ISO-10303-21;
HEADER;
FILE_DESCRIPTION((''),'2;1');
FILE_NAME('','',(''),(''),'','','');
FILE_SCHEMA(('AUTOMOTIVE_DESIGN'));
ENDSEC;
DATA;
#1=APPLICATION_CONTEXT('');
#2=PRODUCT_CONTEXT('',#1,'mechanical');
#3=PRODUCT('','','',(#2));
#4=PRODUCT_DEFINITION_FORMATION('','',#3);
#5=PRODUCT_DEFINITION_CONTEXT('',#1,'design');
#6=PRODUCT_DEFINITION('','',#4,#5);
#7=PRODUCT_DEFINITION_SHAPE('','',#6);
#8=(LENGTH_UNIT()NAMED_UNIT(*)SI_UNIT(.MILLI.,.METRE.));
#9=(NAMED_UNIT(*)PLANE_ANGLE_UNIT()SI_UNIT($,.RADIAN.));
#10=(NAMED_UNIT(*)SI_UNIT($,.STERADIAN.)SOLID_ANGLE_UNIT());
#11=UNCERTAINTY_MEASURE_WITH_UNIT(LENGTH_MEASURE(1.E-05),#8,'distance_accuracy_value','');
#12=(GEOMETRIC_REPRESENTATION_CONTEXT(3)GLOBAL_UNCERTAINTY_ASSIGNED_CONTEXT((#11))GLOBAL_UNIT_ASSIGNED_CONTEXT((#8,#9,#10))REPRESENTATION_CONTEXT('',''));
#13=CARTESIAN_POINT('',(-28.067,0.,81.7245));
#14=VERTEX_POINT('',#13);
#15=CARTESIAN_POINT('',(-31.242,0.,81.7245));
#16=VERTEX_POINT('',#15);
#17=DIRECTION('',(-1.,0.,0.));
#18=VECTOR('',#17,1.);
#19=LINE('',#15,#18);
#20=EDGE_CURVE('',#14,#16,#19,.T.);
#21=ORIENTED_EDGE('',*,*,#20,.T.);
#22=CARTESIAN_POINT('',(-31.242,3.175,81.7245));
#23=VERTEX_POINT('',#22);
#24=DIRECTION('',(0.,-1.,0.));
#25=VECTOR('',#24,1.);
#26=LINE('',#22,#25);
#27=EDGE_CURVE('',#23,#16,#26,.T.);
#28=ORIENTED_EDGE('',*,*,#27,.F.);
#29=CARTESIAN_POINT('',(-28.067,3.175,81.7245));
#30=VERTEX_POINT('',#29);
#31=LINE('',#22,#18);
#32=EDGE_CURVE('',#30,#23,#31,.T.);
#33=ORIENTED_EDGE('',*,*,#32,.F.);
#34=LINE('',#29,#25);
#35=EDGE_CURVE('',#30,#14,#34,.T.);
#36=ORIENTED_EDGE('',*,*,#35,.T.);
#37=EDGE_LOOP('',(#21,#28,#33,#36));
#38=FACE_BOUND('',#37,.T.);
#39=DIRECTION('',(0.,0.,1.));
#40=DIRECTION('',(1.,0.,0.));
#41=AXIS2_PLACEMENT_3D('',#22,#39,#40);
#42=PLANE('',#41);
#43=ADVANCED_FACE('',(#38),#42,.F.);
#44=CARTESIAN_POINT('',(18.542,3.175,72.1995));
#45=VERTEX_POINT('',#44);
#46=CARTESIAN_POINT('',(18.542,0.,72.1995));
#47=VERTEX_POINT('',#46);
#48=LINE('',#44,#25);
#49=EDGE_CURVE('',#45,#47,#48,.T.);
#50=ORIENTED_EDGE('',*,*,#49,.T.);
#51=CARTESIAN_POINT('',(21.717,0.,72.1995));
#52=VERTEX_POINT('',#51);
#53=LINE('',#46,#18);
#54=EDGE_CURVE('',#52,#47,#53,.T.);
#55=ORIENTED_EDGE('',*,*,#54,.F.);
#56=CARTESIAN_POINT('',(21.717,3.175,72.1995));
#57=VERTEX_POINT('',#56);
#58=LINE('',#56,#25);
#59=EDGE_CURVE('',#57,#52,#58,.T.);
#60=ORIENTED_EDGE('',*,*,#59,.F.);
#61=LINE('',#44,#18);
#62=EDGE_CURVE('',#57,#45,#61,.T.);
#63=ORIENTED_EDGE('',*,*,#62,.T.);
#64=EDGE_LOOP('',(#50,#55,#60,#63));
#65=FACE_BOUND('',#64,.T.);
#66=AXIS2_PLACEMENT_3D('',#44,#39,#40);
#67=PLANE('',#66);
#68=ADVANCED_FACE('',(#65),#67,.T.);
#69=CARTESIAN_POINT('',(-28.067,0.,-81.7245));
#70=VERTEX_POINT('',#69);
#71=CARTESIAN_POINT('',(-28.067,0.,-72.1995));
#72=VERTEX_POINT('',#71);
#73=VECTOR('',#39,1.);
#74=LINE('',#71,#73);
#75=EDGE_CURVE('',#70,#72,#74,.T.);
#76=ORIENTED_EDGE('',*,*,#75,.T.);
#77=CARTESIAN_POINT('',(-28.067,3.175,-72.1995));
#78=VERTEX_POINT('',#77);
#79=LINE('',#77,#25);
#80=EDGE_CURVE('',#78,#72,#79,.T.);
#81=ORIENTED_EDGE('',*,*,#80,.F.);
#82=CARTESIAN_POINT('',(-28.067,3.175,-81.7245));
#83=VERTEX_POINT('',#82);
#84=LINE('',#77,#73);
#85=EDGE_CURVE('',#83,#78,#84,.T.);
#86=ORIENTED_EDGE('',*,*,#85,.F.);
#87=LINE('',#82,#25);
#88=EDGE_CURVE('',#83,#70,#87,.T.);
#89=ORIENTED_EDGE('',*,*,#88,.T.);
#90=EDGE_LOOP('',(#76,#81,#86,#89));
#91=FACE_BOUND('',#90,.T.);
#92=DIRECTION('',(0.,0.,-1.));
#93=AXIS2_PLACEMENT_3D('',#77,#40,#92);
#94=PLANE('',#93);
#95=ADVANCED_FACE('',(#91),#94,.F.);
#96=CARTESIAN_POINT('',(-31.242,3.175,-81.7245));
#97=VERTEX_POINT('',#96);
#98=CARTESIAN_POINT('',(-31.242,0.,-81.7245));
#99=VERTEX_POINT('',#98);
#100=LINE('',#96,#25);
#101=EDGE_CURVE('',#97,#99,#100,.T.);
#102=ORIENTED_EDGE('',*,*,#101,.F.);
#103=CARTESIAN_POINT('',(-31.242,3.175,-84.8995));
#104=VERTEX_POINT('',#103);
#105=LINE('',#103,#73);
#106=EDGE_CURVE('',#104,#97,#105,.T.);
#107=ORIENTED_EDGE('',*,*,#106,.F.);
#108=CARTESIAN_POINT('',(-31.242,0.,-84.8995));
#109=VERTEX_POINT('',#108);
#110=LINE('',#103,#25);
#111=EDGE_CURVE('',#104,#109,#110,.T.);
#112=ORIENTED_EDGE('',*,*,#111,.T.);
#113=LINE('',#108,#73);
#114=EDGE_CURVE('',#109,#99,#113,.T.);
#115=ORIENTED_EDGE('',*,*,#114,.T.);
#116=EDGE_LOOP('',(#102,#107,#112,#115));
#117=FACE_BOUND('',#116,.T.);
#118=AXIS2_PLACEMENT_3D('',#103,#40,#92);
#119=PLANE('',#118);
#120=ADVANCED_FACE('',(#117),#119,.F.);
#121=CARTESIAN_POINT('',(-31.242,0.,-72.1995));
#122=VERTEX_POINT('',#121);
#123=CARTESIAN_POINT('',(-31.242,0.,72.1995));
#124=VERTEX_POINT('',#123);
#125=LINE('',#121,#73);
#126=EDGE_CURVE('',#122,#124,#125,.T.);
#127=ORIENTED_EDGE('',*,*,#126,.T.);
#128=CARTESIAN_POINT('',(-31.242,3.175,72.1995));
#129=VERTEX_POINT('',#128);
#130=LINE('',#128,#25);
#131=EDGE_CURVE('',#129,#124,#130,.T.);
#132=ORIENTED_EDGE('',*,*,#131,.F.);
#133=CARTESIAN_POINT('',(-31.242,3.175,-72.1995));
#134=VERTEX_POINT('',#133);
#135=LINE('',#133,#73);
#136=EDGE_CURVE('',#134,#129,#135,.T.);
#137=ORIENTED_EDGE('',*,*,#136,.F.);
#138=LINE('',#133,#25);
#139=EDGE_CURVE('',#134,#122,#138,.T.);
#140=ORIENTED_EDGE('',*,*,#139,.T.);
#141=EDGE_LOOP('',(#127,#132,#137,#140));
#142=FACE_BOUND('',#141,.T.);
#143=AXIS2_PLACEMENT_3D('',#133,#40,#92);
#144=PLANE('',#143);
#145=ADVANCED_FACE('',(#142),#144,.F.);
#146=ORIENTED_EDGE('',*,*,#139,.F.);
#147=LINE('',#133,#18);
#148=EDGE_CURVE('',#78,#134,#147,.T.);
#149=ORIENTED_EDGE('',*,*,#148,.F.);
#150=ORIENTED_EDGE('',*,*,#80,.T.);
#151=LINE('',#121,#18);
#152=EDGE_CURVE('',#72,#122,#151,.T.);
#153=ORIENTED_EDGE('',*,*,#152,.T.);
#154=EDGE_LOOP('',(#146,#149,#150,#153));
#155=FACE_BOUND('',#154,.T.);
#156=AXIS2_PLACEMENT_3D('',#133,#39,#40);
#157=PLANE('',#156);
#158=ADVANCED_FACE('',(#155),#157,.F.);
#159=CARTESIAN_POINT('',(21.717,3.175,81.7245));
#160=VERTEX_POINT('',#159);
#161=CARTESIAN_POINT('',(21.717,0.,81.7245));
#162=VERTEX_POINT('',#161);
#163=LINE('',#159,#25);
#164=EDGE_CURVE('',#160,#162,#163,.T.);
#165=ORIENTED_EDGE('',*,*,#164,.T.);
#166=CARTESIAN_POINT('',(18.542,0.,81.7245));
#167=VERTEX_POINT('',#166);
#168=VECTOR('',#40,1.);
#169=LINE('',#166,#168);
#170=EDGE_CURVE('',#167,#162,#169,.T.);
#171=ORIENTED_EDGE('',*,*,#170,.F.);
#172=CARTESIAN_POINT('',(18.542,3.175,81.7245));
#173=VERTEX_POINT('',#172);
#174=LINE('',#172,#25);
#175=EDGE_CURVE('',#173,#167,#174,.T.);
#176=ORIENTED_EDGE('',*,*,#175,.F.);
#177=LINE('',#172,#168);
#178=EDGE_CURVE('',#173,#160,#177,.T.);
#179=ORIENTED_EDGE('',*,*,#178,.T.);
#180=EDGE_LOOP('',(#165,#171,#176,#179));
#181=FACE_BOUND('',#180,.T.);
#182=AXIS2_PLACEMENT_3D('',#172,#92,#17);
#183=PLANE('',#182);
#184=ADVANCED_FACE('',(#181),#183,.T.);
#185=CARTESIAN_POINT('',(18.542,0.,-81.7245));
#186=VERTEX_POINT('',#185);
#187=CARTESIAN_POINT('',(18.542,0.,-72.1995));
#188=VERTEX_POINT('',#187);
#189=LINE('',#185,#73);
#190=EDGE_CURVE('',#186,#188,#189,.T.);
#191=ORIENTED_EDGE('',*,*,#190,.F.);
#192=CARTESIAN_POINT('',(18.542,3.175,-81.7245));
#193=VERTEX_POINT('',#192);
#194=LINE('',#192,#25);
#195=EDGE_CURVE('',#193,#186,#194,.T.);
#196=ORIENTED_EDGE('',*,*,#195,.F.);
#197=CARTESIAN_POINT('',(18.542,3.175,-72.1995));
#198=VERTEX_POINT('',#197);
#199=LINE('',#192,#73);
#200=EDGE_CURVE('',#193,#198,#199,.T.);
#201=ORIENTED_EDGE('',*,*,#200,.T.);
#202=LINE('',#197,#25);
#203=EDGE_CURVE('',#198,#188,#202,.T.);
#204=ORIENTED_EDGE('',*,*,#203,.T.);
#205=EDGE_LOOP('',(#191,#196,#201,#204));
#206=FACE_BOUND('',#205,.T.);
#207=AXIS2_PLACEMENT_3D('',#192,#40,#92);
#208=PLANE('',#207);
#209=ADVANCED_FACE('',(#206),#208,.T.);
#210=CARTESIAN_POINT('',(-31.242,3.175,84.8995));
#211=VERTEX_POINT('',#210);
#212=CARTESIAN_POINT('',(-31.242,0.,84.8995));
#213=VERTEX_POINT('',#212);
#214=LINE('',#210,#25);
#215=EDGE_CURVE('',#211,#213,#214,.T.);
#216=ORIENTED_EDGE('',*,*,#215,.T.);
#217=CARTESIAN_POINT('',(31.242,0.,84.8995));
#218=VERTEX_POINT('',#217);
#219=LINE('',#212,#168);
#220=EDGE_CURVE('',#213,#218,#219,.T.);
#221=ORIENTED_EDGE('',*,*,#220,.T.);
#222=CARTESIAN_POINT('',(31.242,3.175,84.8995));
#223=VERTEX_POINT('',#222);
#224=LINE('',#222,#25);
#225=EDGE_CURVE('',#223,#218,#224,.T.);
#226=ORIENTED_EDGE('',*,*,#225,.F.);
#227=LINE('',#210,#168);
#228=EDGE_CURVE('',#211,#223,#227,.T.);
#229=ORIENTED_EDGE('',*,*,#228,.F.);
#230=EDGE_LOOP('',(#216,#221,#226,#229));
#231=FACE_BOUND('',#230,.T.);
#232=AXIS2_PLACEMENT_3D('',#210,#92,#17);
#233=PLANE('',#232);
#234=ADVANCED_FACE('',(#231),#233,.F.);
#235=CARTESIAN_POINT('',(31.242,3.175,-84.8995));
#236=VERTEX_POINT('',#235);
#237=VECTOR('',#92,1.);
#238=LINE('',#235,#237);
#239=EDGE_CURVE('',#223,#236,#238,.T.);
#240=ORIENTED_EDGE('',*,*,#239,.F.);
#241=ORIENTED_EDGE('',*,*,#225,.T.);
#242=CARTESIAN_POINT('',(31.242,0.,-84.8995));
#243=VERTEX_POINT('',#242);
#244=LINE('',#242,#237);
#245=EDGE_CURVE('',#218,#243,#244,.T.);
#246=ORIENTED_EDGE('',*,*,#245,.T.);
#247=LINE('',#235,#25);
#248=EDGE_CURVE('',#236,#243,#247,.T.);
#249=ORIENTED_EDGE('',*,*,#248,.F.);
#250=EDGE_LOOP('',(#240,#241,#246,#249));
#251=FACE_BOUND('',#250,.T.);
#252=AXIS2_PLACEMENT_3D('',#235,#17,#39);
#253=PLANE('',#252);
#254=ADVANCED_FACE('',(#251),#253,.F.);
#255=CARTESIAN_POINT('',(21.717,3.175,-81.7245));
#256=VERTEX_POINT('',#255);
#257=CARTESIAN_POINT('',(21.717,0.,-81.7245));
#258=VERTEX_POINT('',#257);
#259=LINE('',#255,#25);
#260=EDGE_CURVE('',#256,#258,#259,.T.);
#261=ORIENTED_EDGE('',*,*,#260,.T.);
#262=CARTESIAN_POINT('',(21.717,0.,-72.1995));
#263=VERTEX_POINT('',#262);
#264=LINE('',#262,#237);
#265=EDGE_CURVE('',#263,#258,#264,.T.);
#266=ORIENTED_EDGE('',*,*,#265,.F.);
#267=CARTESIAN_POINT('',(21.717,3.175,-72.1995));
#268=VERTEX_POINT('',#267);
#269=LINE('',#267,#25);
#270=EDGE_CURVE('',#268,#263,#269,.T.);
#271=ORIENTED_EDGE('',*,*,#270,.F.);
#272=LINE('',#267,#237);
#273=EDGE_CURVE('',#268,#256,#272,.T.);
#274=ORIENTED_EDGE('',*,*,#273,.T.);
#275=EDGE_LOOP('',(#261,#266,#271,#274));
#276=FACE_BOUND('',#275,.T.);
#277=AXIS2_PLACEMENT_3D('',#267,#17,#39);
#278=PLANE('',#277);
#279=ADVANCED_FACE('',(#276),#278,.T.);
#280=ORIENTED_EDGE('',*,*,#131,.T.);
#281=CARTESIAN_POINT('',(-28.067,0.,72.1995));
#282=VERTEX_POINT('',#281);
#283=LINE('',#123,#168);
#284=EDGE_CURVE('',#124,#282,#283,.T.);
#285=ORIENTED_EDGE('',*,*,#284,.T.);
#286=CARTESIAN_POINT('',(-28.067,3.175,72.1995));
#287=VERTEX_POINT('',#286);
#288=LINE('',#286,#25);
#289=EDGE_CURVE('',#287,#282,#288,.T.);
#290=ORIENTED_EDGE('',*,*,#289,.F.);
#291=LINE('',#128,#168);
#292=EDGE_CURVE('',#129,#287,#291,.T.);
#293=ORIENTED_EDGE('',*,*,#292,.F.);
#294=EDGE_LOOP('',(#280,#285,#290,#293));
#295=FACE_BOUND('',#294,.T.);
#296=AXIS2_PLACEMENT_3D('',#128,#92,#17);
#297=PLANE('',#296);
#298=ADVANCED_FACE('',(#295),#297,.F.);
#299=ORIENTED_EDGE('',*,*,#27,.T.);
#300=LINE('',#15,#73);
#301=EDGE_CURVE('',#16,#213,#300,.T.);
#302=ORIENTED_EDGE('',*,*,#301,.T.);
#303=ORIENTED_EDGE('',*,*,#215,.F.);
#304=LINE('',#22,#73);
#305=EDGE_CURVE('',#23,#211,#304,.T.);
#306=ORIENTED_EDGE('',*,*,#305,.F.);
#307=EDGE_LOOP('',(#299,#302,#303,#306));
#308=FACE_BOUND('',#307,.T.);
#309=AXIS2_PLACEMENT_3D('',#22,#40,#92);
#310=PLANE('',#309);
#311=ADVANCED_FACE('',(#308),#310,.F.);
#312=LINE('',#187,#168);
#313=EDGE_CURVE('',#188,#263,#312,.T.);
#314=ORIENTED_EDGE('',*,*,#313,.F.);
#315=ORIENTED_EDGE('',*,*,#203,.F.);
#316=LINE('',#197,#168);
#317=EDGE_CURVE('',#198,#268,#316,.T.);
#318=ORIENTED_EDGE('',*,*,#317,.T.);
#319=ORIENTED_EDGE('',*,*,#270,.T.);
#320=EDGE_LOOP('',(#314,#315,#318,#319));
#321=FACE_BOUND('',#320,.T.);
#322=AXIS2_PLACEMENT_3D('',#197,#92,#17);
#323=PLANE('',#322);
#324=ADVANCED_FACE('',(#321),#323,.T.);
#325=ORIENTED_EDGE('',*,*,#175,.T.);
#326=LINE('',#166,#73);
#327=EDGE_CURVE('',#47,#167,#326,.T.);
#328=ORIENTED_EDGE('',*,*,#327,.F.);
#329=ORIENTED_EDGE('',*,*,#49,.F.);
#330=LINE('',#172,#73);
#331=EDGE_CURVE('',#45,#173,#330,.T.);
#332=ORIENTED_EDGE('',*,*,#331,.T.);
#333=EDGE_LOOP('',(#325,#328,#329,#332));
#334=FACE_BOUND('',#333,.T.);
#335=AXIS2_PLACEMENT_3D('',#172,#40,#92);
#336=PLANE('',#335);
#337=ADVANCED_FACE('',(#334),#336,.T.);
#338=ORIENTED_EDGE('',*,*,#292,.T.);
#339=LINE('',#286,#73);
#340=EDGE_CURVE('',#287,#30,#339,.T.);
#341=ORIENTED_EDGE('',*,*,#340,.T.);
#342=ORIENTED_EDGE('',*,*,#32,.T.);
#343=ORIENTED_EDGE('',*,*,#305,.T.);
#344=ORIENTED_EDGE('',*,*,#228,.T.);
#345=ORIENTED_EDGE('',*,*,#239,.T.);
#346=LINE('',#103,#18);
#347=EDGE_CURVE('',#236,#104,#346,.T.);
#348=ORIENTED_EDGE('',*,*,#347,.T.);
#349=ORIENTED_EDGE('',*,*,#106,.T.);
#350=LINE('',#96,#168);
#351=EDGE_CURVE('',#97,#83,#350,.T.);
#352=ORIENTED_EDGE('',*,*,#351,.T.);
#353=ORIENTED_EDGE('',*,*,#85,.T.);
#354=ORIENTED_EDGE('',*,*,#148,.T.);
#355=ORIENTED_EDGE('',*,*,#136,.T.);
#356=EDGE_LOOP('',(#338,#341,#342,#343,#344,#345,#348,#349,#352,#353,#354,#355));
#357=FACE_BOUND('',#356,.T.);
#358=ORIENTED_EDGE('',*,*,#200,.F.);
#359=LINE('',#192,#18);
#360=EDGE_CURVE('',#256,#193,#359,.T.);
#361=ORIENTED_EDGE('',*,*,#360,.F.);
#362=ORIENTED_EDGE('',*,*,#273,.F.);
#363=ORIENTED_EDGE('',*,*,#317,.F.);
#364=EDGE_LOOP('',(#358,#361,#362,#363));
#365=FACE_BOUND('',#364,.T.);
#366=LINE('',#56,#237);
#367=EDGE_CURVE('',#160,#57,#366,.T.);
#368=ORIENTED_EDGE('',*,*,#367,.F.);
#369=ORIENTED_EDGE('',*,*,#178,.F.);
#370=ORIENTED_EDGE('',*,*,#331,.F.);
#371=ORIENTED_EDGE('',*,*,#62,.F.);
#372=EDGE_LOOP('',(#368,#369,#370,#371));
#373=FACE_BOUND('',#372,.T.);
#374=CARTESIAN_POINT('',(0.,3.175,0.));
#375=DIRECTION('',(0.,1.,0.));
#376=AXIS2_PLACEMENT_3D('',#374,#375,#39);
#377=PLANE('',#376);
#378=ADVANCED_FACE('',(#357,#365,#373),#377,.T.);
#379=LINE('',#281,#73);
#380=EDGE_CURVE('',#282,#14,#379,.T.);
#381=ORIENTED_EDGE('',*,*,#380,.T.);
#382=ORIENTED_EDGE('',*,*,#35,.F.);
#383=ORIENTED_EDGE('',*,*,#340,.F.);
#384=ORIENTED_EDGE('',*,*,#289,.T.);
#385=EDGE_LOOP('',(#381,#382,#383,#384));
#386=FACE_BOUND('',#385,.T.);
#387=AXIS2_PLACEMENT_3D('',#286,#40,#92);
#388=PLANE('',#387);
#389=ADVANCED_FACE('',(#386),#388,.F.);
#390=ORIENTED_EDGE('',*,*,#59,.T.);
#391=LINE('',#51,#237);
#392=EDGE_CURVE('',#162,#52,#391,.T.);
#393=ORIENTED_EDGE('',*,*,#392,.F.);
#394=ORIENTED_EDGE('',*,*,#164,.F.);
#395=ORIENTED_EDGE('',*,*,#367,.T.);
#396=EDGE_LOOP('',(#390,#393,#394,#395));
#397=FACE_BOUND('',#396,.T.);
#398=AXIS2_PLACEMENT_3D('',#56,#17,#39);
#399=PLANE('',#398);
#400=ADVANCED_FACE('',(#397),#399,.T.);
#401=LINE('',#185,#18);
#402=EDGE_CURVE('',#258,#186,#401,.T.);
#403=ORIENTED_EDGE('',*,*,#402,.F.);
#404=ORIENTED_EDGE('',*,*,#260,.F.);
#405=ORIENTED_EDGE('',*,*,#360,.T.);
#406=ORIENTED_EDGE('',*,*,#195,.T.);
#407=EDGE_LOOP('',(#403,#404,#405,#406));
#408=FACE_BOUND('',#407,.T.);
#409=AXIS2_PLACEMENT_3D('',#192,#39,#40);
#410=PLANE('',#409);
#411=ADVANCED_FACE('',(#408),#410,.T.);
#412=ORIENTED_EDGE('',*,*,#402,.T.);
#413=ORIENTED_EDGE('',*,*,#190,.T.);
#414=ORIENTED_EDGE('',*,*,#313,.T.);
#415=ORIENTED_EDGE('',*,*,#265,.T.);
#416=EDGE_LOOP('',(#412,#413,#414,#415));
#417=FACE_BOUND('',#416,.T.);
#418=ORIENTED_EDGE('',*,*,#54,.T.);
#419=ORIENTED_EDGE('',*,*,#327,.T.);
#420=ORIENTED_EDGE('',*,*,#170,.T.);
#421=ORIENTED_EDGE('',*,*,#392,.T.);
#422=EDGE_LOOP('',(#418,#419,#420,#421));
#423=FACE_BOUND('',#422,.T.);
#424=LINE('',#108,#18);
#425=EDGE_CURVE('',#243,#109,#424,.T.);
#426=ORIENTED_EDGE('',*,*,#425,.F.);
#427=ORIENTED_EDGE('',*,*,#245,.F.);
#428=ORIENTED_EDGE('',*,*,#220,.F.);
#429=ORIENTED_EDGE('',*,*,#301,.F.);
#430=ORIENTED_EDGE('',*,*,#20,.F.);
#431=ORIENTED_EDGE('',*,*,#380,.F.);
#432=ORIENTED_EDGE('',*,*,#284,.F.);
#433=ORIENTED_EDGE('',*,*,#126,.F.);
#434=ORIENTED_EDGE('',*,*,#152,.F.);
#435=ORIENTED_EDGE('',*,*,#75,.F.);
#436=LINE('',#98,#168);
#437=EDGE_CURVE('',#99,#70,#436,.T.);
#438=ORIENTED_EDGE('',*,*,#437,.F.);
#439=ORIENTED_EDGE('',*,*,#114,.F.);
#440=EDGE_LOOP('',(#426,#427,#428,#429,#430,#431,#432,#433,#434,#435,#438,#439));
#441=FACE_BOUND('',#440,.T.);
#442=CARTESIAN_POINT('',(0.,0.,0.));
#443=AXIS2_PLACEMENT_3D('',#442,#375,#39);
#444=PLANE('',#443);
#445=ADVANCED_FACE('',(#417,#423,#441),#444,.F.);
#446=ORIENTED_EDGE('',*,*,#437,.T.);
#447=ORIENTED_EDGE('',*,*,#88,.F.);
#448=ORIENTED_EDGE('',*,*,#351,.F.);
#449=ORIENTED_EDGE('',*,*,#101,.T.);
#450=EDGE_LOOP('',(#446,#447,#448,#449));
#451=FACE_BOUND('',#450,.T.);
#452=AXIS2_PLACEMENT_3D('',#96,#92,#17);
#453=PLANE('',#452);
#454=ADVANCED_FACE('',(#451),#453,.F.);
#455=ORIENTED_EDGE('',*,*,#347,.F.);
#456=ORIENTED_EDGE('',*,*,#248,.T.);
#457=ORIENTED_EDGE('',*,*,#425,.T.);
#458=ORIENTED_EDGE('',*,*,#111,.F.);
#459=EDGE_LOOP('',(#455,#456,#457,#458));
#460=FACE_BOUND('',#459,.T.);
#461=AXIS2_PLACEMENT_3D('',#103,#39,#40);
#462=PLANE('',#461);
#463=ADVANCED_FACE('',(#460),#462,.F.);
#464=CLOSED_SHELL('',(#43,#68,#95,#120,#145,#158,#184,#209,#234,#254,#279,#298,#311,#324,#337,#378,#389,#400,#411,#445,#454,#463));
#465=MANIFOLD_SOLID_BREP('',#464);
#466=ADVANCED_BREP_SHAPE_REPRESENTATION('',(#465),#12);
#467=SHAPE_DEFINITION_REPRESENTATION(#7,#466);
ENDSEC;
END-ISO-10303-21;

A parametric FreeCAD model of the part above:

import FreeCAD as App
import Part
import Sketcher

V = App.Vector
Q = App.Units.Quantity


def add_polygon(sketch, points):
    """Adds a closed chain of lines whose ends are joined by coincident constraints."""
    first, n = sketch.GeometryCount, len(points)
    for a, b in zip(points, points[1:] + points[:1]):
        sketch.addGeometry(Part.LineSegment(App.Vector(*a, 0), App.Vector(*b, 0)), False)
    for i in range(n):
        sketch.addConstraint(Sketcher.Constraint("Coincident", first + i, 2, first + (i + 1) % n, 1))

doc = App.newDocument("Part")
body = doc.addObject("PartDesign::Body", "Body")

# Sketch on XZ plane
sketch1 = body.newObject("Sketcher::SketchObject", "Sketch")
sketch1.AttachmentSupport = (doc.getObject("XZ_Plane"), [""])
sketch1.MapMode = "FlatFace"
add_polygon(sketch1, [(-28.067, -72.1995), (-31.242, -72.1995), (-31.242, 72.1995), (-28.067, 72.1995), (-28.067, 81.7245), (-31.242, 81.7245), (-31.242, 84.8995), (31.242, 84.8995), (31.242, -84.8995), (-31.242, -84.8995), (-31.242, -81.7245), (-28.067, -81.7245)])  # lines 0-11
add_polygon(sketch1, [(18.542, 81.7245), (18.542, 72.1995), (21.717, 72.1995), (21.717, 81.7245)])  # lines 12-15
add_polygon(sketch1, [(18.542, -72.1995), (18.542, -81.7245), (21.717, -81.7245), (21.717, -72.1995)])  # lines 16-19
sketch1.addConstraint([
    Sketcher.Constraint("Horizontal", 0),
    Sketcher.Constraint("Vertical", 1),
    Sketcher.Constraint("Horizontal", 2),
    Sketcher.Constraint("Vertical", 3),
    Sketcher.Constraint("Horizontal", 4),
    Sketcher.Constraint("Vertical", 5),
    Sketcher.Constraint("Horizontal", 6),
    Sketcher.Constraint("Vertical", 7),
    Sketcher.Constraint("Horizontal", 8),
    Sketcher.Constraint("Vertical", 9),
    Sketcher.Constraint("Horizontal", 10),
    Sketcher.Constraint("Vertical", 11),
    Sketcher.Constraint("Vertical", 12),
    Sketcher.Constraint("Horizontal", 13),
    Sketcher.Constraint("Vertical", 14),
    Sketcher.Constraint("Horizontal", 15),
    Sketcher.Constraint("Vertical", 16),
    Sketcher.Constraint("Horizontal", 17),
    Sketcher.Constraint("Vertical", 18),
    Sketcher.Constraint("Horizontal", 19),
    Sketcher.Constraint("Symmetric", 5, 2, 7, 2, -1, 1),
    Sketcher.Constraint("Symmetric", 4, 2, 9, 2, -1),
    Sketcher.Constraint("Symmetric", 2, 2, 11, 2, -1),
    Sketcher.Constraint("Symmetric", 15, 2, 16, 2, -1),
    Sketcher.Constraint("Symmetric", 13, 2, 18, 2, -1),
    Sketcher.Constraint("Horizontal", 2, 2, 12, 2),
    Sketcher.Constraint("Horizontal", 4, 2, 14, 2),
    Sketcher.Constraint("Vertical", 1, 2, 4, 2),
    Sketcher.Constraint("Equal", 10, 13),
    Sketcher.Constraint("Equal", 19, 5),
    Sketcher.Constraint("DistanceX", 6, 1, 6, 2, Q("2.46 in")),
    Sketcher.Constraint("DistanceY", 1, 2, 5, 2, Q("0.5 in")),
    Sketcher.Constraint("DistanceX", 12, 2, 6, 2, Q("0.5 in")),
    Sketcher.Constraint("DistanceX", 0, 2, 0, 1, Q("0.125 in")),
    Sketcher.Constraint("DistanceY", 1, 1, 1, 2, Q("5.685 in")),
])
pad1 = body.newObject("PartDesign::Pad", "Pad")
pad1.Profile = sketch1
pad1.Length = Q("0.125 in")
pad1.Reversed = True

doc.recompute()
